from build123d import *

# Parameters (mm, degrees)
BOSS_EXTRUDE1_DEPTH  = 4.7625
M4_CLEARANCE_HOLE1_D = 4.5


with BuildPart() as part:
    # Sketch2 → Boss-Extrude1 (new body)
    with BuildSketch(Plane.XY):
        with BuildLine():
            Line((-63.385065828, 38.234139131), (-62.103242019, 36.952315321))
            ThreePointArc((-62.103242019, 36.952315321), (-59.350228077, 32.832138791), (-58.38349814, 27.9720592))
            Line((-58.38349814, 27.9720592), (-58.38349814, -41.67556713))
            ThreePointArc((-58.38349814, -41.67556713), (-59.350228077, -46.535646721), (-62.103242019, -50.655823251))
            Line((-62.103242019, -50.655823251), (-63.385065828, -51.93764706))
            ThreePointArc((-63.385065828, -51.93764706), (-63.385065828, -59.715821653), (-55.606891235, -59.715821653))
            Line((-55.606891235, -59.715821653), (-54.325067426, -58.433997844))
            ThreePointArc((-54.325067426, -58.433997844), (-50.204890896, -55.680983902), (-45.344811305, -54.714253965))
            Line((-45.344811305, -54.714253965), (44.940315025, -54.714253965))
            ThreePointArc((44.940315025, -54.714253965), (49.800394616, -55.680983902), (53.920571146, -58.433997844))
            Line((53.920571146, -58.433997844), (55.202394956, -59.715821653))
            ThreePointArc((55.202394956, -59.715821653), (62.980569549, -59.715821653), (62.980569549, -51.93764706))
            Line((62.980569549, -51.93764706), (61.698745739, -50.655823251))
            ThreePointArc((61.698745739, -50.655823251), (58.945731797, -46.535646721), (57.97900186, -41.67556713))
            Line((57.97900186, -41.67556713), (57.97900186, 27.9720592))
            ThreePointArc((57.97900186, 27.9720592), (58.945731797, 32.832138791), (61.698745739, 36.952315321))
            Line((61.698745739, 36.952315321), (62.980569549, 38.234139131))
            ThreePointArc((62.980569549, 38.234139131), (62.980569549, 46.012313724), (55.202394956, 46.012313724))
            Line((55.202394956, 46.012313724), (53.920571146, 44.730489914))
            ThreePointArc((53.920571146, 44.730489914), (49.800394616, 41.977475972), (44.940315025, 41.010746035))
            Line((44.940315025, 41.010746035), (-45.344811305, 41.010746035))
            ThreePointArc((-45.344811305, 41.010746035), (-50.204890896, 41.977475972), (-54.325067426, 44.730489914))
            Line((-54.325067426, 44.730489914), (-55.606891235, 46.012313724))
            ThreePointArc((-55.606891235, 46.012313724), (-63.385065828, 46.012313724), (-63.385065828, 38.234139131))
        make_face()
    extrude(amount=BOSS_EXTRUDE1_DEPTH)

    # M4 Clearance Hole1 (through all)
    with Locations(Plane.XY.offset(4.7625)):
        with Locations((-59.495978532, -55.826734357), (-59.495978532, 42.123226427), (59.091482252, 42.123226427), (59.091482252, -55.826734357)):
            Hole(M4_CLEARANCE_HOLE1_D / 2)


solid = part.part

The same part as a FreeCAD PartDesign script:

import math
import FreeCAD as App
import Part
import Sketcher
Q = App.Units.Quantity

doc = App.newDocument("Part")
body = doc.addObject("PartDesign::Body", "Body")

# Sketch on XY plane
sketch1 = body.newObject("Sketcher::SketchObject", "Sketch")
sketch1.AttachmentSupport = (doc.getObject("XY_Plane"), [""])
sketch1.MapMode = "FlatFace"
sketch1.addGeometry([
    Part.LineSegment(App.Vector(-63.385066, 38.234139, 0), App.Vector(-62.103242, 36.952315, 0)),  # 0
    Part.ArcOfCircle(Part.Circle(App.Vector(-71.083498, 27.972059, 0), App.Vector(0, 0, 1), 12.7), math.radians(0), math.radians(45)),  # 1
    Part.LineSegment(App.Vector(-58.383498, 27.972059, 0), App.Vector(-58.383498, -41.675567, 0)),  # 2
    Part.ArcOfCircle(Part.Circle(App.Vector(-71.083498, -41.675567, 0), App.Vector(0, 0, 1), 12.7), math.radians(-45), math.radians(0)),  # 3
    Part.LineSegment(App.Vector(-62.103242, -50.655823, 0), App.Vector(-63.385066, -51.937647, 0)),  # 4
    Part.ArcOfCircle(Part.Circle(App.Vector(-59.495979, -55.826734, 0), App.Vector(0, 0, 1), 5.5), math.radians(135), math.radians(315)),  # 5
    Part.LineSegment(App.Vector(-55.606891, -59.715822, 0), App.Vector(-54.325067, -58.433998, 0)),  # 6
    Part.ArcOfCircle(Part.Circle(App.Vector(-45.344811, -67.414254, 0), App.Vector(0, 0, 1), 12.7), math.radians(90), math.radians(135)),  # 7
    Part.LineSegment(App.Vector(-45.344811, -54.714254, 0), App.Vector(44.940315, -54.714254, 0)),  # 8
    Part.ArcOfCircle(Part.Circle(App.Vector(44.940315, -67.414254, 0), App.Vector(0, 0, 1), 12.7), math.radians(45), math.radians(90)),  # 9
    Part.LineSegment(App.Vector(53.920571, -58.433998, 0), App.Vector(55.202395, -59.715822, 0)),  # 10
    Part.ArcOfCircle(Part.Circle(App.Vector(59.091482, -55.826734, 0), App.Vector(0, 0, 1), 5.5), math.radians(-135), math.radians(45)),  # 11
    Part.LineSegment(App.Vector(62.98057, -51.937647, 0), App.Vector(61.698746, -50.655823, 0)),  # 12
    Part.ArcOfCircle(Part.Circle(App.Vector(70.679002, -41.675567, 0), App.Vector(0, 0, 1), 12.7), math.radians(180), math.radians(225)),  # 13
    Part.LineSegment(App.Vector(57.979002, -41.675567, 0), App.Vector(57.979002, 27.972059, 0)),  # 14
    Part.ArcOfCircle(Part.Circle(App.Vector(70.679002, 27.972059, 0), App.Vector(0, 0, 1), 12.7), math.radians(135), math.radians(180)),  # 15
    Part.LineSegment(App.Vector(61.698746, 36.952315, 0), App.Vector(62.98057, 38.234139, 0)),  # 16
    Part.ArcOfCircle(Part.Circle(App.Vector(59.091482, 42.123226, 0), App.Vector(0, 0, 1), 5.5), math.radians(-45), math.radians(135)),  # 17
    Part.LineSegment(App.Vector(55.202395, 46.012314, 0), App.Vector(53.920571, 44.73049, 0)),  # 18
    Part.ArcOfCircle(Part.Circle(App.Vector(44.940315, 53.710746, 0), App.Vector(0, 0, 1), 12.7), math.radians(-90), math.radians(-45)),  # 19
    Part.LineSegment(App.Vector(44.940315, 41.010746, 0), App.Vector(-45.344811, 41.010746, 0)),  # 20
    Part.ArcOfCircle(Part.Circle(App.Vector(-45.344811, 53.710746, 0), App.Vector(0, 0, 1), 12.7), math.radians(-135), math.radians(-90)),  # 21
    Part.LineSegment(App.Vector(-54.325067, 44.73049, 0), App.Vector(-55.606891, 46.012314, 0)),  # 22
    Part.ArcOfCircle(Part.Circle(App.Vector(-59.495979, 42.123226, 0), App.Vector(0, 0, 1), 5.5), math.radians(45), math.radians(225)),  # 23
], False)
sketch1.addConstraint([
    Sketcher.Constraint("Tangent", 0, 2, 1, 2),
    Sketcher.Constraint("Tangent", 1, 1, 2, 1),
    Sketcher.Constraint("Tangent", 2, 2, 3, 2),
    Sketcher.Constraint("Tangent", 3, 1, 4, 1),
    Sketcher.Constraint("Tangent", 4, 2, 5, 1),
    Sketcher.Constraint("Tangent", 5, 2, 6, 1),
    Sketcher.Constraint("Tangent", 6, 2, 7, 2),
    Sketcher.Constraint("Tangent", 7, 1, 8, 1),
    Sketcher.Constraint("Tangent", 8, 2, 9, 2),
    Sketcher.Constraint("Tangent", 9, 1, 10, 1),
    Sketcher.Constraint("Tangent", 10, 2, 11, 1),
    Sketcher.Constraint("Tangent", 11, 2, 12, 1),
    Sketcher.Constraint("Tangent", 12, 2, 13, 2),
    Sketcher.Constraint("Tangent", 13, 1, 14, 1),
    Sketcher.Constraint("Tangent", 14, 2, 15, 2),
    Sketcher.Constraint("Tangent", 15, 1, 16, 1),
    Sketcher.Constraint("Tangent", 16, 2, 17, 1),
    Sketcher.Constraint("Tangent", 17, 2, 18, 1),
    Sketcher.Constraint("Tangent", 18, 2, 19, 2),
    Sketcher.Constraint("Tangent", 19, 1, 20, 1),
    Sketcher.Constraint("Tangent", 20, 2, 21, 2),
    Sketcher.Constraint("Tangent", 21, 1, 22, 1),
    Sketcher.Constraint("Tangent", 22, 2, 23, 1),
    Sketcher.Constraint("Tangent", 23, 2, 0, 1),
    Sketcher.Constraint("Vertical", 2),
    Sketcher.Constraint("Horizontal", 8),
    Sketcher.Constraint("Vertical", 14),
    Sketcher.Constraint("Horizontal", 20),
    Sketcher.Constraint("Equal", 1, 3),
    Sketcher.Constraint("Equal", 3, 7),
    Sketcher.Constraint("Equal", 7, 9),
    Sketcher.Constraint("Equal", 5, 11),
    Sketcher.Constraint("Equal", 9, 13),
    Sketcher.Constraint("Equal", 13, 15),
    Sketcher.Constraint("Equal", 11, 17),
    Sketcher.Constraint("Equal", 15, 19),
    Sketcher.Constraint("Equal", 19, 21),
    Sketcher.Constraint("Equal", 17, 23),
    Sketcher.Constraint("Perpendicular", 0, 4),
    Sketcher.Constraint("Parallel", 4, 6),
    Sketcher.Constraint("Perpendicular", 6, 10),
    Sketcher.Constraint("Parallel", 10, 12),
    Sketcher.Constraint("Perpendicular", 12, 16),
    Sketcher.Constraint("Parallel", 16, 18),
    Sketcher.Constraint("Perpendicular", 18, 22),
    Sketcher.Constraint("Horizontal", 5, 3, 11, 3),
    Sketcher.Constraint("Horizontal", 3, 3, 13, 3),
    Sketcher.Constraint("Horizontal", 1, 3, 15, 3),
    Sketcher.Constraint("Horizontal", 17, 3, 23, 3),
    Sketcher.Constraint("Horizontal", 6, 2, 9, 1),
    Sketcher.Constraint("Vertical", 11, 3, 17, 3),
    Sketcher.Constraint("Vertical", 9, 3, 19, 3),
    Sketcher.Constraint("Equal", 4, 6),
    Sketcher.Constraint("Radius", 1, Q("12.7 mm")),
    Sketcher.Constraint("Radius", 5, Q("5.5 mm")),
    Sketcher.Constraint("DistanceY", 5, 2, 3, 1, Q("9.059998 mm")),
    Sketcher.Constraint("DistanceX", -1, 1, 13, 3, Q("70.679002 mm")),
    Sketcher.Constraint("DistanceX", 1, 3, -1, 1, Q("71.083498 mm")),
    Sketcher.Constraint("DistanceY", 2, 2, 2, 1, Q("69.647626 mm")),
    Sketcher.Constraint("DistanceY", -1, 1, 1, 3, Q("27.972059 mm")),
])
pad1 = body.newObject("PartDesign::Pad", "Pad")
pad1.Profile = sketch1
pad1.Length = 4.7625

# Sketch on XY plane
sketch2 = body.newObject("Sketcher::SketchObject", "Sketch001")
sketch2.AttachmentSupport = (doc.getObject("XY_Plane"), [""])
sketch2.MapMode = "FlatFace"
sketch2.AttachmentOffset = App.Placement(App.Vector(0, 0, 4.7625), App.Rotation())
sketch2.addGeometry([
    Part.Circle(App.Vector(-59.495979, -55.826734, 0), App.Vector(0, 0, 1), 2.25),
    Part.Circle(App.Vector(-59.495979, 42.123226, 0), App.Vector(0, 0, 1), 2.25),
    Part.Circle(App.Vector(59.091482, 42.123226, 0), App.Vector(0, 0, 1), 2.25),
    Part.Circle(App.Vector(59.091482, -55.826734, 0), App.Vector(0, 0, 1), 2.25),
], False)
sketch2.addConstraint([
    Sketcher.Constraint("Equal", 0, 1),
    Sketcher.Constraint("Equal", 1, 2),
    Sketcher.Constraint("Equal", 2, 3),
    Sketcher.Constraint("Horizontal", 1, 3, 2, 3),
    Sketcher.Constraint("Horizontal", 0, 3, 3, 3),
    Sketcher.Constraint("Vertical", 0, 3, 1, 3),
    Sketcher.Constraint("Vertical", 2, 3, 3, 3),
    Sketcher.Constraint("Diameter", 0, Q("4.5 mm")),
    Sketcher.Constraint("DistanceX", 0, 3, -1, 1, Q("59.495979 mm")),
    Sketcher.Constraint("DistanceY", 0, 3, 1, 3, Q("97.949961 mm")),
    Sketcher.Constraint("DistanceX", 1, 3, 2, 3, Q("118.587461 mm")),
    Sketcher.Constraint("DistanceY", 0, 3, -1, 1, Q("55.826734 mm")),
])
doc.recompute()
hole = body.newObject("PartDesign::Hole", "Hole")
hole.Profile = sketch2
hole.ThreadType = "None"
hole.Diameter = 4.5
hole.DepthType = "ThroughAll"

doc.recompute()
